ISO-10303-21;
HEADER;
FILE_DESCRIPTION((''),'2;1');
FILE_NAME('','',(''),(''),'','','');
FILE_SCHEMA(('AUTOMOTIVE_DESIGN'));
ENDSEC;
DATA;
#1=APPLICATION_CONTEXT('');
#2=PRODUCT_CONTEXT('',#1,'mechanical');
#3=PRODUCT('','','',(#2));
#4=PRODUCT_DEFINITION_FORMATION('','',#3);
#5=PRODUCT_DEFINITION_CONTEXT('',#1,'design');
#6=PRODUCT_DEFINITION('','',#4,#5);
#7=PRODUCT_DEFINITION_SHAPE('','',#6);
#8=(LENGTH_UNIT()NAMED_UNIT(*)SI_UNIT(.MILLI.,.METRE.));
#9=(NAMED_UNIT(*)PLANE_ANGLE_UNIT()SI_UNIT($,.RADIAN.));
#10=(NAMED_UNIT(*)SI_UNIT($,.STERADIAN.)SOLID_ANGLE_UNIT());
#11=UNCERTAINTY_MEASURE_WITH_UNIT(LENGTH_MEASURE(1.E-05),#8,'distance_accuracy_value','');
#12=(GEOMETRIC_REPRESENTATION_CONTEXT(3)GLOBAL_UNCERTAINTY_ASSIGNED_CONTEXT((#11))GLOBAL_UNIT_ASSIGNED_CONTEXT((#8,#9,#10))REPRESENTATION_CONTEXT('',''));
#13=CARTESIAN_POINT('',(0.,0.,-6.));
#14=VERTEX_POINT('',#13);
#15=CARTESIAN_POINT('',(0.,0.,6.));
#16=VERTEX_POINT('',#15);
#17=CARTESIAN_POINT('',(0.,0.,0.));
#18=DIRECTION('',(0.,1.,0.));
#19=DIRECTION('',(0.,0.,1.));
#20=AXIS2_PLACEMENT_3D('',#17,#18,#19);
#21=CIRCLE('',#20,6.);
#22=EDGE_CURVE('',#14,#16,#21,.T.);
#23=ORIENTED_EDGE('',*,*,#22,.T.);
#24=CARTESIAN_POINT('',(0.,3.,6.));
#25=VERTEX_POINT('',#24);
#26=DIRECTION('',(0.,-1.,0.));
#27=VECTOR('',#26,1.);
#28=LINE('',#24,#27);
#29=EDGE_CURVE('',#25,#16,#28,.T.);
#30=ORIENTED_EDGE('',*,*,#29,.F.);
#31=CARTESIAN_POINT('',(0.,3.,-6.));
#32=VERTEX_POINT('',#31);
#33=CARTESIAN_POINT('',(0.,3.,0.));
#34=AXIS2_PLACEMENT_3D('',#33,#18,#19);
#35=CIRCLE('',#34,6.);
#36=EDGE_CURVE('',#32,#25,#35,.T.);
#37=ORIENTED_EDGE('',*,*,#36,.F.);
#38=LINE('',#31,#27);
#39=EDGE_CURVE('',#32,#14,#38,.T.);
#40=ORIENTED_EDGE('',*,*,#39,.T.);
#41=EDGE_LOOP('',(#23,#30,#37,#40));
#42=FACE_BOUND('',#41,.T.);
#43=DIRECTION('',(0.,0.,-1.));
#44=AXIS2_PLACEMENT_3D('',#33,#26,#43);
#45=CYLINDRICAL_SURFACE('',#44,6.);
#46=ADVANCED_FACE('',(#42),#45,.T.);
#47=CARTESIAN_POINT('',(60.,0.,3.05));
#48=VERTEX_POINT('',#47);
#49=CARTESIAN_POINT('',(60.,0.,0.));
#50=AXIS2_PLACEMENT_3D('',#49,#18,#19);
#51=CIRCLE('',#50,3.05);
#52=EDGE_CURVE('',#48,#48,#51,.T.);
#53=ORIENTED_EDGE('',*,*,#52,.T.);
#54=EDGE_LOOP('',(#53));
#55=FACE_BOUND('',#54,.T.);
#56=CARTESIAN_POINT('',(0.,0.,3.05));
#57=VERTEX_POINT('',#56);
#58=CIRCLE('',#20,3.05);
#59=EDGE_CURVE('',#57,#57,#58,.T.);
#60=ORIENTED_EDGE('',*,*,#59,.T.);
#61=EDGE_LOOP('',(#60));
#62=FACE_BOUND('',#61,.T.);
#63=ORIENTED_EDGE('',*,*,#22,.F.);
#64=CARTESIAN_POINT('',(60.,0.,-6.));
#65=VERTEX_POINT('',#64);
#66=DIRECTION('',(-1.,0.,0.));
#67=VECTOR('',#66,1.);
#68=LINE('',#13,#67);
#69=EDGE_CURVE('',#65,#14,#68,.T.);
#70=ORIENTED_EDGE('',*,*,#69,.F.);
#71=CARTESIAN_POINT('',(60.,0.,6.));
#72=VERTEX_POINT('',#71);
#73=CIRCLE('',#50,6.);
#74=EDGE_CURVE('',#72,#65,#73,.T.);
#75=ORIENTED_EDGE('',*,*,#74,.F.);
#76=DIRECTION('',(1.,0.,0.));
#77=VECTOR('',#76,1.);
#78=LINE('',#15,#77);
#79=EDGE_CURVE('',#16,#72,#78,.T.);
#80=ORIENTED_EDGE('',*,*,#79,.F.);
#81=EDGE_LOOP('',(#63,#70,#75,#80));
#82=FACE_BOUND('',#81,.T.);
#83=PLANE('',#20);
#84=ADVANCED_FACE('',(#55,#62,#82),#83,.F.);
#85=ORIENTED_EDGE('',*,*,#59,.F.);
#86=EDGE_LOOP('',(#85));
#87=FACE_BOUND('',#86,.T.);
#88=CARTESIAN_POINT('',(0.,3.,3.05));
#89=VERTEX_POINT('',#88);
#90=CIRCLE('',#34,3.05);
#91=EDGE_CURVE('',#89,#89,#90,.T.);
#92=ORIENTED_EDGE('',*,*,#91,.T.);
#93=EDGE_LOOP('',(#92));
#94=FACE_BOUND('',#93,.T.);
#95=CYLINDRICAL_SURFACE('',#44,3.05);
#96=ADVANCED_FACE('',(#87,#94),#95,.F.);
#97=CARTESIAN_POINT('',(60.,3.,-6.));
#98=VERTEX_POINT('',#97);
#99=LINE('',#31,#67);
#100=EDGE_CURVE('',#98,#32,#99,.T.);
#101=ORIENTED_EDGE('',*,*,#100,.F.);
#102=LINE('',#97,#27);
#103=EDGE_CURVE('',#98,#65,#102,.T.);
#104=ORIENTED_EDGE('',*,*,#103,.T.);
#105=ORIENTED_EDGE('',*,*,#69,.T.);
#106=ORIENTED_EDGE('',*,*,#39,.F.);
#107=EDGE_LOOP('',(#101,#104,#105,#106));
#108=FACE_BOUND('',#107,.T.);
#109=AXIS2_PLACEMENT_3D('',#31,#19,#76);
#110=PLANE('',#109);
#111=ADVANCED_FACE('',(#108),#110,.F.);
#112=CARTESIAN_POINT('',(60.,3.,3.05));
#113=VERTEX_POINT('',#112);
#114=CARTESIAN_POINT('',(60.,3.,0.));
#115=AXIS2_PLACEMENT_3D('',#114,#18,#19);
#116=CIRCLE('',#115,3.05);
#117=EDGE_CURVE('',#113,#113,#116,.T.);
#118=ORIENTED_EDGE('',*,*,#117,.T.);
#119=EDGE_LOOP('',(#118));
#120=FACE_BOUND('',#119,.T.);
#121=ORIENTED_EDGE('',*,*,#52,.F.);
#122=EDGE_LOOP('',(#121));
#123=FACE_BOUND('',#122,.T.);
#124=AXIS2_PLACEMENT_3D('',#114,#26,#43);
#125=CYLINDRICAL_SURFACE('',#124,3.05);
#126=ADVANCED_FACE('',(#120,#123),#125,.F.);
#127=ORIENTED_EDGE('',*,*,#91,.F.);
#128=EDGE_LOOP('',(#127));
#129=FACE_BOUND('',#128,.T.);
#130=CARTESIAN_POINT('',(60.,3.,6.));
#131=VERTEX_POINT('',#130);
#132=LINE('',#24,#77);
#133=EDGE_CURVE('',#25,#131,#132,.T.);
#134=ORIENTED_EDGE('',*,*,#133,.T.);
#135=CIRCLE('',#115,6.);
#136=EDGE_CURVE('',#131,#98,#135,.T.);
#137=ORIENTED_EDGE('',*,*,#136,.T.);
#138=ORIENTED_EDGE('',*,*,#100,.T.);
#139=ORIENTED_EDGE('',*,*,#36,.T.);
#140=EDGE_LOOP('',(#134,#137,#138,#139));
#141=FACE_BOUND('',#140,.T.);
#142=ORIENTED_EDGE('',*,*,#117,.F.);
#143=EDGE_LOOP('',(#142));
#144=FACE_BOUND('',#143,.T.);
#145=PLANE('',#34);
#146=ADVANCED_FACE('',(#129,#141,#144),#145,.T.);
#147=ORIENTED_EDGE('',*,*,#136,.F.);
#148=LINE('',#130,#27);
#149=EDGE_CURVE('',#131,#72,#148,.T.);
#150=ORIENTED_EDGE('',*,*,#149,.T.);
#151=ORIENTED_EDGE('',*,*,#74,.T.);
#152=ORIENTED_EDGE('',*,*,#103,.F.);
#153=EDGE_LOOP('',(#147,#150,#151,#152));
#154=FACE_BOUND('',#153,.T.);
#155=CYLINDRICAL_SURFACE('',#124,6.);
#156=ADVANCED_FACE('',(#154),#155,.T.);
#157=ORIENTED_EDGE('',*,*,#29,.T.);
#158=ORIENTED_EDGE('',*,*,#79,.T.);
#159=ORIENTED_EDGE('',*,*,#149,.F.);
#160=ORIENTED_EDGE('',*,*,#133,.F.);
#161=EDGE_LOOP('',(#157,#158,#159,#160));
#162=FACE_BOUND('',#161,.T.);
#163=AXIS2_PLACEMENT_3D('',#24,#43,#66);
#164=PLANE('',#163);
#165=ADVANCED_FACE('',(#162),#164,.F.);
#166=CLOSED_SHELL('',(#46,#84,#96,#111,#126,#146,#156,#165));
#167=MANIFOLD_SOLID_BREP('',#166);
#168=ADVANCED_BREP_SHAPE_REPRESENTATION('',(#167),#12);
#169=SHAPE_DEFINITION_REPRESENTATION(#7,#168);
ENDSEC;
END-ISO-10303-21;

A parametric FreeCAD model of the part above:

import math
import FreeCAD as App
import Part
import Sketcher
from FreeCAD import Vector
Q = App.Units.Quantity

doc = App.newDocument("Part")
body = doc.addObject("PartDesign::Body", "Body")

# Sketch on XZ plane
sketch1 = body.newObject("Sketcher::SketchObject", "Sketch")
sketch1.AttachmentSupport = (doc.getObject("XZ_Plane"), [""])
sketch1.MapMode = "FlatFace"
sketch1.addGeometry(Part.LineSegment(Vector(60, -6, 0), Vector(0, -6, 0)), False)
sketch1.addGeometry(Part.ArcOfCircle(Part.Circle(Vector(0, 0, 0), Vector(0, 0, 1), 6), math.radians(90), math.radians(270)), False)
sketch1.addGeometry(Part.LineSegment(Vector(0, 6, 0), Vector(60, 6, 0)), False)
sketch1.addGeometry(Part.ArcOfCircle(Part.Circle(Vector(60, 0, 0), Vector(0, 0, 1), 6), math.radians(-90), math.radians(90)), False)
sketch1.addGeometry(Part.Circle(Vector(60, 0, 0), Vector(0, 0, 1), 3), False)
sketch1.addGeometry(Part.Circle(Vector(0, 0, 0), Vector(0, 0, 1), 3), False)
sketch1.addConstraint(Sketcher.Constraint("Tangent", 0, 2, 1, 2))
sketch1.addConstraint(Sketcher.Constraint("Tangent", 1, 1, 2, 1))
sketch1.addConstraint(Sketcher.Constraint("Tangent", 2, 2, 3, 2))
sketch1.addConstraint(Sketcher.Constraint("Tangent", 3, 1, 0, 1))
sketch1.addConstraint(Sketcher.Constraint("Horizontal", 0))
sketch1.addConstraint(Sketcher.Constraint("Horizontal", 2))
sketch1.addConstraint(Sketcher.Constraint("Coincident", 1, 3, -1, 1))
sketch1.addConstraint(Sketcher.Constraint("Coincident", 5, 3, -1, 1))
sketch1.addConstraint(Sketcher.Constraint("Coincident", 4, 3, 3, 3))
sketch1.addConstraint(Sketcher.Constraint("Equal", 4, 5))
sketch1.addConstraint(Sketcher.Constraint("Radius", 1, Q("6 mm")))
sketch1.addConstraint(Sketcher.Constraint("Diameter", 4, Q("6.1 mm")))
sketch1.addConstraint(Sketcher.Constraint("DistanceX", 0, 2, 0, 1, Q("60 mm")))
pad1 = body.newObject("PartDesign::Pad", "Pad")
pad1.Profile = sketch1
pad1.Length = 3
pad1.Reversed = True

doc.recompute()
